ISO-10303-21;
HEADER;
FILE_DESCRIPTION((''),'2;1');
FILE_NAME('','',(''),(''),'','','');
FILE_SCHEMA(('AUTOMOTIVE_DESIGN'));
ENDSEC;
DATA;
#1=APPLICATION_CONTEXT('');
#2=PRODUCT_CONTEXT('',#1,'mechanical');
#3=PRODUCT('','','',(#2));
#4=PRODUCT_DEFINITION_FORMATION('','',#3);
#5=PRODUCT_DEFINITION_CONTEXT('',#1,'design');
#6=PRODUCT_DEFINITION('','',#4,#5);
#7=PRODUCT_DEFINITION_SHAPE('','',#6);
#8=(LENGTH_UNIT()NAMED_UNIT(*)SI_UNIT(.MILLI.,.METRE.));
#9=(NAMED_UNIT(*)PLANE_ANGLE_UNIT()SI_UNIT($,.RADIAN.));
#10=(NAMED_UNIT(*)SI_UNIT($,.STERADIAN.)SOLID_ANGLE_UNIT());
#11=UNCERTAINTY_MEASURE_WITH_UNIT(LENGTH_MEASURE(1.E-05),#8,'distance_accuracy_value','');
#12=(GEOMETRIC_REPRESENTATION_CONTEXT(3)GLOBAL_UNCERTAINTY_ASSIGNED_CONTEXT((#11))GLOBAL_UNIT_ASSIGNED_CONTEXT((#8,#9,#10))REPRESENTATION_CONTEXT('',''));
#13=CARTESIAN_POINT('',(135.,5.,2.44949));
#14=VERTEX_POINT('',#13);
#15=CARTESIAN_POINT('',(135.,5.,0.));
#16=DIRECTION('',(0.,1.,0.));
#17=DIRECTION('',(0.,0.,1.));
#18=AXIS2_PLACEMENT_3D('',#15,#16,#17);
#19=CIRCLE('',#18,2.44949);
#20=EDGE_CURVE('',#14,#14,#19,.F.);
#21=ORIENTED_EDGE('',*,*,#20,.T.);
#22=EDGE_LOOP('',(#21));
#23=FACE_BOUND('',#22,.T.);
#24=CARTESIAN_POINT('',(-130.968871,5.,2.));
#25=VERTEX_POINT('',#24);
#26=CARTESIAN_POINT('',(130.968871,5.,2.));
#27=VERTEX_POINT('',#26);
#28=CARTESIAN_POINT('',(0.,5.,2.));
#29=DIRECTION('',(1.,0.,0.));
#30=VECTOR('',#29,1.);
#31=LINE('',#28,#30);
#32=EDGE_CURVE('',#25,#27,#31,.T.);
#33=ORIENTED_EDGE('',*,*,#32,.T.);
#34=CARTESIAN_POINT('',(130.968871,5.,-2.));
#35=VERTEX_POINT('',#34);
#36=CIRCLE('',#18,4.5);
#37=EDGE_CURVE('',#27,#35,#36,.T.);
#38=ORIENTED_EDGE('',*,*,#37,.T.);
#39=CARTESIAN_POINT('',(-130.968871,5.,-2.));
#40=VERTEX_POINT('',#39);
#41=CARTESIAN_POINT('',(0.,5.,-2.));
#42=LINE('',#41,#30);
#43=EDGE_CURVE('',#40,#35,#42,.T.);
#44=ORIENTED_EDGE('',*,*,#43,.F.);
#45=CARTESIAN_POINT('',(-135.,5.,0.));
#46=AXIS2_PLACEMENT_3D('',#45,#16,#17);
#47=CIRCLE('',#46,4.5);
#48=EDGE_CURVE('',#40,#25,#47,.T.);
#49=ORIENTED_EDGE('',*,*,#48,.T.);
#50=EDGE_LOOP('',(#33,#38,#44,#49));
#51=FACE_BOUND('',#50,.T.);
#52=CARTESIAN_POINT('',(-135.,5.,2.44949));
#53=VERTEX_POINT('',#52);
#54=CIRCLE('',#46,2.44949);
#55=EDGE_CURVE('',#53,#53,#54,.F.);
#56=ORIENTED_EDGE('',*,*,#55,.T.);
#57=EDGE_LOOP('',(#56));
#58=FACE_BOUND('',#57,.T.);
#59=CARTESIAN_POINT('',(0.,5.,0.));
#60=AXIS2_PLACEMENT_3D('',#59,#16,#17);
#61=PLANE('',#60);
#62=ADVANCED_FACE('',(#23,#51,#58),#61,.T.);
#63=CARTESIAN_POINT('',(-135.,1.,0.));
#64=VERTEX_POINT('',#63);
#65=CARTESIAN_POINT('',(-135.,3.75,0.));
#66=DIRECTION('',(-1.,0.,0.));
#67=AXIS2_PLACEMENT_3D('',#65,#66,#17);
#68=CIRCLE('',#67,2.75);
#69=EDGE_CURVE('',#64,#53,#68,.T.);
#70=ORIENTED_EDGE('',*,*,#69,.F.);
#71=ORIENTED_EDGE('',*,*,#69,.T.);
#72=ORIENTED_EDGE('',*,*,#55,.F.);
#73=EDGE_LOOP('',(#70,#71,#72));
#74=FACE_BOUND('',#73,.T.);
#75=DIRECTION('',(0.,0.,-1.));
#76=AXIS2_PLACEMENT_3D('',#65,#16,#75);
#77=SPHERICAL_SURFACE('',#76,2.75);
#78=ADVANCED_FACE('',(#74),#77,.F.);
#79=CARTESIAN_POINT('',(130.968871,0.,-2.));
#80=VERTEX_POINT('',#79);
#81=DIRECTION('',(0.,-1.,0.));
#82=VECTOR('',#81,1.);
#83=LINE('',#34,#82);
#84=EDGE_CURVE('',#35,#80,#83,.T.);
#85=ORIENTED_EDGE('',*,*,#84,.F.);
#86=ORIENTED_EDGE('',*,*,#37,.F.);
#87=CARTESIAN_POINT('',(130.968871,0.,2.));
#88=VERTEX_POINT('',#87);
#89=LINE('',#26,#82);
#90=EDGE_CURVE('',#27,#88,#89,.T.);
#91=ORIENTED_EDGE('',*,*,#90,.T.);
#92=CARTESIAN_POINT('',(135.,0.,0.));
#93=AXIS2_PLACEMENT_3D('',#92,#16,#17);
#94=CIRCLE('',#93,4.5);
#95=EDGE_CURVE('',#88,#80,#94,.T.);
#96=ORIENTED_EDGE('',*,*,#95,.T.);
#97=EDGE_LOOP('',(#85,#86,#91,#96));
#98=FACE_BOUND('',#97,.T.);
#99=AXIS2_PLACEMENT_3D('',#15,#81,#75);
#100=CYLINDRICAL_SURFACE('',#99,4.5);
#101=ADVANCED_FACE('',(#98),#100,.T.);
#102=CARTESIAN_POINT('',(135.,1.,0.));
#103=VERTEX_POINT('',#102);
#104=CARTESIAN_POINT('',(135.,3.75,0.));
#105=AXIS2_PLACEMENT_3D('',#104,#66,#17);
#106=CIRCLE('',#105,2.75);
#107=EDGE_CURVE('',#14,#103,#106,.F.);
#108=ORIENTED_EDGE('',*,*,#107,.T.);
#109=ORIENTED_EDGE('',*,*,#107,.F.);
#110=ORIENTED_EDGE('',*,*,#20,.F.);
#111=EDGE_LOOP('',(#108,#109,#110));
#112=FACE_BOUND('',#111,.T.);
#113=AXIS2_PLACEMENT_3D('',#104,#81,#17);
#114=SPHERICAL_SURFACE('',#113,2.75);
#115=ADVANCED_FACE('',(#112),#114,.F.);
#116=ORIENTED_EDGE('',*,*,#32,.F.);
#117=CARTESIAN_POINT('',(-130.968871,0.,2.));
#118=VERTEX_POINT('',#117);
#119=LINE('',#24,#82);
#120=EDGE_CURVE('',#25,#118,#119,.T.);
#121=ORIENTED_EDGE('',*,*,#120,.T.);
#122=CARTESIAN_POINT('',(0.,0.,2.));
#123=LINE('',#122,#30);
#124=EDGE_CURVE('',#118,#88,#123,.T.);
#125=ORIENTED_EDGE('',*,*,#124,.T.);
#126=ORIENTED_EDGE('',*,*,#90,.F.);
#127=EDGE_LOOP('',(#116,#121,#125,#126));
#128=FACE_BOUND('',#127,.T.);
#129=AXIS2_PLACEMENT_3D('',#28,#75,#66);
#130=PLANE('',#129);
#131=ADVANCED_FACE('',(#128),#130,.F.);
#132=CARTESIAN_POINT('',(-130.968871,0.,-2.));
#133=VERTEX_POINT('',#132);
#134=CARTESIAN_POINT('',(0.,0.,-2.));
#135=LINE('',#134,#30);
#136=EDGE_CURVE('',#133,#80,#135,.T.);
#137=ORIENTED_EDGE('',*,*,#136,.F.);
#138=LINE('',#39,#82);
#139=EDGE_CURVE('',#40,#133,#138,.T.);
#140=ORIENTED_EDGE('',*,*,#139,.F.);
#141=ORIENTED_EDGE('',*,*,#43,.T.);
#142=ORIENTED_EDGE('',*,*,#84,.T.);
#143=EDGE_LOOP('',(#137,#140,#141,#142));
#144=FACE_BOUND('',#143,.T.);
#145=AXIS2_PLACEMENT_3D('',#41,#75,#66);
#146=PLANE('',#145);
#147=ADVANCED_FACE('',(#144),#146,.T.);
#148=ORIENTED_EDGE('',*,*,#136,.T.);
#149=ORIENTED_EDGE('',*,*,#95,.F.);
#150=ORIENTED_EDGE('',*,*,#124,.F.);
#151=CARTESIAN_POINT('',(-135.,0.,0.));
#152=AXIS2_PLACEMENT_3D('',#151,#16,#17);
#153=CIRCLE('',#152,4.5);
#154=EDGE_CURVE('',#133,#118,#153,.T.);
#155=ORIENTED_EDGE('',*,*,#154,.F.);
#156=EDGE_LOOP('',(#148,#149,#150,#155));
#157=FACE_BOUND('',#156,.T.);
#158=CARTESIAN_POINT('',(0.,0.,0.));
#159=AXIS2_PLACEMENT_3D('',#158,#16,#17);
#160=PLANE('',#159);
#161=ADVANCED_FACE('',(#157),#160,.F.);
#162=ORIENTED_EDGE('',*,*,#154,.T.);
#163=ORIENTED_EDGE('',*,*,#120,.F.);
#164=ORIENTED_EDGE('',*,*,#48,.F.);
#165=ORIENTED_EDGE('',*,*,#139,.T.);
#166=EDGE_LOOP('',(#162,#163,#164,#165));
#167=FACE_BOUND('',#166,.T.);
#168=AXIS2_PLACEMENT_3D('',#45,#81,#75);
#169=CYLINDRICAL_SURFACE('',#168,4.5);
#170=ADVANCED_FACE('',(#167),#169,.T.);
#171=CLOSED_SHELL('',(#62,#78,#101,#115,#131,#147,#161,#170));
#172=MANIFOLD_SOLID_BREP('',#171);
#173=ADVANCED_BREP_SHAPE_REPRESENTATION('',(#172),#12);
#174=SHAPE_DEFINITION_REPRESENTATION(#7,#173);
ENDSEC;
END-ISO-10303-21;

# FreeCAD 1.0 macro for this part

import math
import FreeCAD as App
import Part
import Sketcher
from FreeCAD import Vector
Q = App.Units.Quantity

doc = App.newDocument("Part")
body = doc.addObject("PartDesign::Body", "Body")

# Sketch on XZ plane
sketch1 = doc.addObject("Sketcher::SketchObject", "Sketch")
body.addObject(sketch1)
sketch1.AttachmentSupport = (doc.XZ_Plane, [""])
sketch1.MapMode = "FlatFace"
sketch1.addGeometry([
    Part.LineSegment(Vector(-131, 2, 0), Vector(131, 2, 0)),  # 0
    Part.ArcOfCircle(Part.Circle(Vector(135, 0, 0), Vector(0, 0, 1), 4.5), math.radians(0), math.radians(154)),  # 1
    Part.ArcOfCircle(Part.Circle(Vector(135, 0, 0), Vector(0, 0, 1), 4.5), math.radians(-154), math.radians(0)),  # 2
    Part.LineSegment(Vector(131, -2, 0), Vector(-131, -2, 0)),  # 3
    Part.ArcOfCircle(Part.Circle(Vector(-135, 0, 0), Vector(0, 0, 1), 4.5), math.radians(26), math.radians(334)),  # 4
], False)
sketch1.addConstraint([
    Sketcher.Constraint("Coincident", 0, 2, 1, 2),
    Sketcher.Constraint("Tangent", 1, 1, 2, 2),
    Sketcher.Constraint("Coincident", 2, 1, 3, 1),
    Sketcher.Constraint("Coincident", 3, 2, 4, 2),
    Sketcher.Constraint("Coincident", 4, 1, 0, 1),
    Sketcher.Constraint("Horizontal", 0),
    Sketcher.Constraint("Horizontal", 3),
    Sketcher.Constraint("Equal", 1, 2),
    Sketcher.Constraint("Equal", 2, 4),
    Sketcher.Constraint("Symmetric", 1, 3, 4, 3, -1, 1),
    Sketcher.Constraint("Symmetric", 0, 2, 2, 1, -1),
    Sketcher.Constraint("PointOnObject", 1, 1, -1),
    Sketcher.Constraint("Radius", 1, Q("4.5 mm")),
    Sketcher.Constraint("DistanceX", -1, 1, 1, 3, Q("135 mm")),
    Sketcher.Constraint("DistanceY", -1, 1, 0, 2, Q("2 mm")),
])
pad1 = doc.addObject("PartDesign::Pad", "Pad")
body.addObject(pad1)
pad1.Profile = sketch1
pad1.Length = 5
pad1.Reversed = True

# Sketch on YZ plane
sketch2 = doc.addObject("Sketcher::SketchObject", "Sketch001")
body.addObject(sketch2)
sketch2.AttachmentSupport = (doc.YZ_Plane, [""])
sketch2.MapMode = "FlatFace"
sketch2.AttachmentOffset = App.Placement(Vector(0, 0, -135), App.Rotation())
sketch2.addGeometry([
    Part.ArcOfCircle(Part.Circle(Vector(3.8, 0, 0), Vector(0, 0, 1), 2.8), math.radians(180), math.radians(360)),
    Part.LineSegment(Vector(1, 0, 0), Vector(6.5, 0, 0)),
], False)
sketch2.addConstraint([
    Sketcher.Constraint("Coincident", 0, 1, 1, 1),
    Sketcher.Constraint("Coincident", 1, 2, 0, 2),
    Sketcher.Constraint("Horizontal", 1),
    Sketcher.Constraint("PointOnObject", 0, 3, -1),
    Sketcher.Constraint("PointOnObject", 0, 1, -1),
    Sketcher.Constraint("Radius", 0, Q("2.75 mm")),
    Sketcher.Constraint("DistanceX", -1, 1, 0, 1, Q("1 mm")),
])

# Sketch on XZ plane
sketch3 = doc.addObject("Sketcher::SketchObject", "Sketch002")
body.addObject(sketch3)
sketch3.AttachmentSupport = (doc.XZ_Plane, [""])
sketch3.MapMode = "FlatFace"
sketch3.AttachmentOffset = App.Placement(Vector(0, 0, -5), App.Rotation())
sketch3.addGeometry(Part.Circle(Vector(-135, 0, 0), Vector(0, 0, 1), 4.5), False)
sketch3.addConstraint([
    Sketcher.Constraint("PointOnObject", 0, 3, -1),
    Sketcher.Constraint("Diameter", 0, Q("9 mm")),
    Sketcher.Constraint("DistanceX", 0, 3, -1, 1, Q("135 mm")),
])
doc.recompute()

subtractivepipe = doc.addObject("PartDesign::SubtractivePipe", "SubtractivePipe")
body.addObject(subtractivepipe)
subtractivepipe.Profile = sketch2
subtractivepipe.Spine = (sketch3, ["Edge1"])
doc.recompute()

mirrored = doc.addObject("PartDesign::Mirrored", "Mirrored")
body.addObject(mirrored)
mirrored.Originals = [subtractivepipe]
mirrored.MirrorPlane = (doc.YZ_Plane, [""])
body.Tip = mirrored

doc.recompute()
